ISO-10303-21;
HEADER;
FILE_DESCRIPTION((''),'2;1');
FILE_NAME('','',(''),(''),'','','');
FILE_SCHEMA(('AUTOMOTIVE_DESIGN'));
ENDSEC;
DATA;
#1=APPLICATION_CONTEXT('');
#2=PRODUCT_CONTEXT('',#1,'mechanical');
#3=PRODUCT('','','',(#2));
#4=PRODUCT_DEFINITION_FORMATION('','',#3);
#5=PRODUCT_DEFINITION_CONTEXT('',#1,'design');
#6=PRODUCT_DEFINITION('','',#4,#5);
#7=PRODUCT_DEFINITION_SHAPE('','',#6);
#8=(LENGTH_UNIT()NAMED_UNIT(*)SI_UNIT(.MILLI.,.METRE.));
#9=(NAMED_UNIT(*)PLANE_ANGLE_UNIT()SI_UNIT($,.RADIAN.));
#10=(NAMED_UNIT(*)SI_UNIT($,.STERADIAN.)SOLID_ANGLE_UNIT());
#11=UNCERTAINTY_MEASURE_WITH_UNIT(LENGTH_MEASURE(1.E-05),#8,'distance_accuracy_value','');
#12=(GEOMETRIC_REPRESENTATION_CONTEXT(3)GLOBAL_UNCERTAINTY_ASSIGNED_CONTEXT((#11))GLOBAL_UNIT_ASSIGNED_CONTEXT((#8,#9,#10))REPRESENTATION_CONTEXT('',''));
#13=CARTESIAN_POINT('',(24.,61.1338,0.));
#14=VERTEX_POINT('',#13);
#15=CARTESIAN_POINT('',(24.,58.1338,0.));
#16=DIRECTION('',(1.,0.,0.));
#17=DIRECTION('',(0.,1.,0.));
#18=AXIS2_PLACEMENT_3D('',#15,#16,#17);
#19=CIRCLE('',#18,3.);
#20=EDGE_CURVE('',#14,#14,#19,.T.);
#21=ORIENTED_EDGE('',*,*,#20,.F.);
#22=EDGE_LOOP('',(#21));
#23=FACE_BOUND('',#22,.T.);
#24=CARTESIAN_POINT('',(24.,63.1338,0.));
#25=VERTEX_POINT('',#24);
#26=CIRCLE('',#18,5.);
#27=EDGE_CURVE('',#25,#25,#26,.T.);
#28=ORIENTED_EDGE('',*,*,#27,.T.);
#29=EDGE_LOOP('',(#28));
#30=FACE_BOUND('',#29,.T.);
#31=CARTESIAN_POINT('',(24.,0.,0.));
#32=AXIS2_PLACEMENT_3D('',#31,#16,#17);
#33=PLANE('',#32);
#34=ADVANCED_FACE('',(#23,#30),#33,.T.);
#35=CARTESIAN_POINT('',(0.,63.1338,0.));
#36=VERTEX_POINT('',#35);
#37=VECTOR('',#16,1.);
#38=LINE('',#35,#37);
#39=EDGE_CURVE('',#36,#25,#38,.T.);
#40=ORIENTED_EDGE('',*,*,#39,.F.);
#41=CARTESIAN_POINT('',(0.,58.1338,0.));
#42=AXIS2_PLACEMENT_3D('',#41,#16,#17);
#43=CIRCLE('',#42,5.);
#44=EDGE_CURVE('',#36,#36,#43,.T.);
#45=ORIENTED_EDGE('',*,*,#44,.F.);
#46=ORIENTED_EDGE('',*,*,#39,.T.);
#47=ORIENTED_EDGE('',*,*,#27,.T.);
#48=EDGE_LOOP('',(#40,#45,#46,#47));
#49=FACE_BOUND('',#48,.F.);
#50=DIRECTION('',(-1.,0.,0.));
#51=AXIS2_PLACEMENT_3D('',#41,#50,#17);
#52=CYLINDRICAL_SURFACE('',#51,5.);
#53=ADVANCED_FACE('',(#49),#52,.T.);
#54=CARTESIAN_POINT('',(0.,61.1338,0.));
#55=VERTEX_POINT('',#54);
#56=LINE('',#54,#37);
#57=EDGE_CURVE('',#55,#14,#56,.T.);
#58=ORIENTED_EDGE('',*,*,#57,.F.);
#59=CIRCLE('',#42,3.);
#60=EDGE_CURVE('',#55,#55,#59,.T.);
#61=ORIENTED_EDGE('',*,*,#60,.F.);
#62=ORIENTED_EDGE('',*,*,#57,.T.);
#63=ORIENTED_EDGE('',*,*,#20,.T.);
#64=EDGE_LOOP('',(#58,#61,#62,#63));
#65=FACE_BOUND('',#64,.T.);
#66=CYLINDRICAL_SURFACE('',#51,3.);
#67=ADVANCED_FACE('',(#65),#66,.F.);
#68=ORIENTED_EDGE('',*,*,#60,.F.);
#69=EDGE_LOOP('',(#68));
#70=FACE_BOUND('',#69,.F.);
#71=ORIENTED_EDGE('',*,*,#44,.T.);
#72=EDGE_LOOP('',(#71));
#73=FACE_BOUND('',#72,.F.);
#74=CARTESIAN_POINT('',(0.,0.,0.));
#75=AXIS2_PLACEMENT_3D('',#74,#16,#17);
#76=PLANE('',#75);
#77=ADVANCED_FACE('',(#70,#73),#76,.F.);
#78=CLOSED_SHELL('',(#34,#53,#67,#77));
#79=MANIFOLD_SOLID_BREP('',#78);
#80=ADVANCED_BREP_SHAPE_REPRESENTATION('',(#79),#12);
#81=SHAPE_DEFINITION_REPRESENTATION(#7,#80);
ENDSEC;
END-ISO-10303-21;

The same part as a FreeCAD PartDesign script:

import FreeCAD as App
import Part
import Sketcher

V = App.Vector
Q = App.Units.Quantity

doc = App.newDocument("Part")
body = doc.addObject("PartDesign::Body", "Body")

# Sketch on YZ plane
sketch1 = body.newObject("Sketcher::SketchObject", "Sketch")
sketch1.AttachmentSupport = (doc.getObject("YZ_Plane"), [""])
sketch1.MapMode = "FlatFace"
sketch1.addGeometry([
    Part.Circle(V(58.1338, 0, 0), V(0, 0, 1), 5),
    Part.Circle(V(58.1338, 0, 0), V(0, 0, 1), 3),
], False)
sketch1.addConstraint([
    Sketcher.Constraint("Coincident", 1, 3, 0, 3),
    Sketcher.Constraint("PointOnObject", 0, 3, -1),
    Sketcher.Constraint("Diameter", 0, Q("10 mm")),
    Sketcher.Constraint("Diameter", 1, Q("6 mm")),
    Sketcher.Constraint("DistanceX", -1, 1, 0, 3, Q("58.1338 mm")),
])
pad1 = body.newObject("PartDesign::Pad", "Pad")
pad1.Profile = sketch1
pad1.Length = 24

doc.recompute()
